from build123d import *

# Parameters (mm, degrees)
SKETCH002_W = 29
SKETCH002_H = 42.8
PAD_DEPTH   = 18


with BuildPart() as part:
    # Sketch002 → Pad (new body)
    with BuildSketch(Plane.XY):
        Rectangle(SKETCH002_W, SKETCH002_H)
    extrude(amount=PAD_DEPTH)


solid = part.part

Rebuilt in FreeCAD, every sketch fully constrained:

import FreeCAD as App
import Part
import Sketcher
Q = App.Units.Quantity


def add_polygon(sketch, points):
    """Adds a closed chain of lines whose ends are joined by coincident constraints."""
    first, n = sketch.GeometryCount, len(points)
    for a, b in zip(points, points[1:] + points[:1]):
        sketch.addGeometry(Part.LineSegment(App.Vector(*a, 0), App.Vector(*b, 0)), False)
    for i in range(n):
        sketch.addConstraint(Sketcher.Constraint("Coincident", first + i, 2, first + (i + 1) % n, 1))

doc = App.newDocument("Part")
body = doc.addObject("PartDesign::Body", "Body")

sketch1 = doc.addObject("Sketcher::SketchObject", "Sketch")
body.addObject(sketch1)
sketch1.AttachmentSupport = (doc.XY_Plane, [""])
sketch1.MapMode = "FlatFace"
add_polygon(sketch1, [(-14, 21), (-14, -21), (14, -21), (14, 21)])
sketch1.addConstraint(Sketcher.Constraint("Vertical", 0))
sketch1.addConstraint(Sketcher.Constraint("Horizontal", 1))
sketch1.addConstraint(Sketcher.Constraint("Vertical", 2))
sketch1.addConstraint(Sketcher.Constraint("Horizontal", 3))
sketch1.addConstraint(Sketcher.Constraint("Symmetric", 0, 2, 2, 2, -1, 1))
sketch1.addConstraint(Sketcher.Constraint("DistanceX", 1, 1, 1, 2, Q("29 mm")))
sketch1.addConstraint(Sketcher.Constraint("DistanceY", 0, 2, 0, 1, Q("42.8 mm")))
pad1 = doc.addObject("PartDesign::Pad", "Pad")
body.addObject(pad1)
pad1.Profile = sketch1
pad1.Length = 18

doc.recompute()
